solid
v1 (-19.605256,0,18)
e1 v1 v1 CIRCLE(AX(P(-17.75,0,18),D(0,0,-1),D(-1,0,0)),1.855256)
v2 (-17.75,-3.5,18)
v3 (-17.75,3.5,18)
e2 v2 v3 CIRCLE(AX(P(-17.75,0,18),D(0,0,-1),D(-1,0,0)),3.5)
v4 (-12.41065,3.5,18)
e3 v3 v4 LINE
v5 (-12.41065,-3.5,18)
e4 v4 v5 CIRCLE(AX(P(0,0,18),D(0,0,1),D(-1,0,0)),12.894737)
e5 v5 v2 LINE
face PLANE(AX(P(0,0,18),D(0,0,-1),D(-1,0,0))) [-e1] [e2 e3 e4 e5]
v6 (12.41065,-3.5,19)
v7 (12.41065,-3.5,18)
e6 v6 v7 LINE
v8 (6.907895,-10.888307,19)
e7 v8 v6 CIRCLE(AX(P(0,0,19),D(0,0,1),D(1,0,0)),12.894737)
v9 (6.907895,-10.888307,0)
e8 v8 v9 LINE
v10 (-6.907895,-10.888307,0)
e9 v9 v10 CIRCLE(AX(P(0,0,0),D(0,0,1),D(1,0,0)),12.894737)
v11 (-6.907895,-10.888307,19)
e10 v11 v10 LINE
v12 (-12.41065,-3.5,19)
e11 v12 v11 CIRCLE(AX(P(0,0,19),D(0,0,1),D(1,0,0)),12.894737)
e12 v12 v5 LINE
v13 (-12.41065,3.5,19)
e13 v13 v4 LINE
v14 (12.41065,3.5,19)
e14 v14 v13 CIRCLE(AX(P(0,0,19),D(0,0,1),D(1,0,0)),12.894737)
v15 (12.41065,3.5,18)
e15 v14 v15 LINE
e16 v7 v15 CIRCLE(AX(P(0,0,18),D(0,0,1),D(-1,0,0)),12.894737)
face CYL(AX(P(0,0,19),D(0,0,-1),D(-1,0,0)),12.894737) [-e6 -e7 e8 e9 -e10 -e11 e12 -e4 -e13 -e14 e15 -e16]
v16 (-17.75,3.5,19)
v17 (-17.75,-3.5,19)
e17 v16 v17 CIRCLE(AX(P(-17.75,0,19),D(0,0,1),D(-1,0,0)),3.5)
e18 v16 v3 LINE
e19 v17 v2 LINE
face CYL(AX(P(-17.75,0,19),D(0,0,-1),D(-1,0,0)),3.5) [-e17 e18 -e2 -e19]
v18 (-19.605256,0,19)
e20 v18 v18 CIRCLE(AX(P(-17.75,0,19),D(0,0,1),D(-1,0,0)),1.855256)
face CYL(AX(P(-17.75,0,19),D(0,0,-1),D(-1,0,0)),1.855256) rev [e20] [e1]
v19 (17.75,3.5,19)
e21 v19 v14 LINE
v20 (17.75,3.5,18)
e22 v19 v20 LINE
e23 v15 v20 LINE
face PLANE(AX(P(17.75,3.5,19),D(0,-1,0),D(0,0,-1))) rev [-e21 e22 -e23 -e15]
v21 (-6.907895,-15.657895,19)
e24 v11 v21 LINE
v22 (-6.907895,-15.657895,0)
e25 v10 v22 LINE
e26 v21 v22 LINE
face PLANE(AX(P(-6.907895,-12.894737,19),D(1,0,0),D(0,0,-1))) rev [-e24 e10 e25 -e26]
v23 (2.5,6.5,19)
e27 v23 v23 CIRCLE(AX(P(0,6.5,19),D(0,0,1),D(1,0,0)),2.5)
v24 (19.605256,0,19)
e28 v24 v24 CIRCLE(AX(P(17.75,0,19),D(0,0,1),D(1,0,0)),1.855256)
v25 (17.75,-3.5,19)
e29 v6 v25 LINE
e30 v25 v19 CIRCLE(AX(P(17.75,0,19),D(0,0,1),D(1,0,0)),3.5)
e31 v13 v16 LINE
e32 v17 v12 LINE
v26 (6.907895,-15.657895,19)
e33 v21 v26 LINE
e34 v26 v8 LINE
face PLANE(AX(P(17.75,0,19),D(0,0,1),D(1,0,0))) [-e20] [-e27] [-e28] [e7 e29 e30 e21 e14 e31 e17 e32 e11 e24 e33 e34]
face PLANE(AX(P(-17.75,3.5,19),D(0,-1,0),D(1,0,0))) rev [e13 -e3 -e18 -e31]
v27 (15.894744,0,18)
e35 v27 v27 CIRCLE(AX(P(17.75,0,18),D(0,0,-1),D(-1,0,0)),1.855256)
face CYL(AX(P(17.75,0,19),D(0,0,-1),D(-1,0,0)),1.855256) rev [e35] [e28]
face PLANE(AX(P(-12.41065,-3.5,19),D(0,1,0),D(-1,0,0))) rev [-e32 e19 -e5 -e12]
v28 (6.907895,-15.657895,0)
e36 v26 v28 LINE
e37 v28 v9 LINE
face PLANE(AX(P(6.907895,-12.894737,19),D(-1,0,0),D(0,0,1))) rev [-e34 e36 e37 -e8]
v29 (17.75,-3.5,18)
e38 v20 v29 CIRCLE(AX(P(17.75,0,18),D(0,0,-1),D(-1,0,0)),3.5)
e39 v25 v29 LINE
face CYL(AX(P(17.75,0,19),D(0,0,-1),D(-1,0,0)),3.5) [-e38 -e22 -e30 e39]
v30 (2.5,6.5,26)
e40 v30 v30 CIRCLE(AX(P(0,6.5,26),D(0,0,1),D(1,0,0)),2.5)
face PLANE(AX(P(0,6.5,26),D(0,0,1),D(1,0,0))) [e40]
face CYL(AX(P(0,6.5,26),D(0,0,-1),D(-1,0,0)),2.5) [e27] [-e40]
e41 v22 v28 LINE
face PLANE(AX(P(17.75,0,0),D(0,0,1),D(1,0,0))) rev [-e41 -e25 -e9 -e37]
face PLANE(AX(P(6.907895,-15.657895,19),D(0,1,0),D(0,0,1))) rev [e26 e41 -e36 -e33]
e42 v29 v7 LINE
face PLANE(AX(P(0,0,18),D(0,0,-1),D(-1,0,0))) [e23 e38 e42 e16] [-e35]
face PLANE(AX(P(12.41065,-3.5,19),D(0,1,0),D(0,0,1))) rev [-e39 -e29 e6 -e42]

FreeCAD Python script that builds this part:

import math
import FreeCAD as App
import Part
import Sketcher

doc = App.newDocument("Part")
body = doc.addObject("PartDesign::Body", "Body")

# Sketch on XY plane
sketch1 = body.newObject("Sketcher::SketchObject", "Sketch")
sketch1.AttachmentSupport = (doc.getObject("XY_Plane"), [""])
sketch1.MapMode = "FlatFace"
sketch1.addGeometry([
    Part.LineSegment(App.Vector(17.8, 3.5, 0), App.Vector(12.4, 3.5, 0)),  # 0
    Part.ArcOfCircle(Part.Circle(App.Vector(0, 0, 0), App.Vector(0, 0, 1), 12.9), math.radians(16), math.radians(164)),  # 1
    Part.LineSegment(App.Vector(-12.4, 3.5, 0), App.Vector(-17.8, 3.5, 0)),  # 2
    Part.ArcOfCircle(Part.Circle(App.Vector(-17.8, 0, 0), App.Vector(0, 0, 1), 3.5), math.radians(90), math.radians(270)),  # 3
    Part.LineSegment(App.Vector(-17.8, -3.5, 0), App.Vector(-12.4, -3.5, 0)),  # 4
    Part.ArcOfCircle(Part.Circle(App.Vector(0, 0, 0), App.Vector(0, 0, 1), 12.9), math.radians(-164), math.radians(-122)),  # 5
    Part.LineSegment(App.Vector(-6.9, -10.9, 0), App.Vector(-6.9, -15.7, 0)),  # 6
    Part.LineSegment(App.Vector(-6.9, -15.7, 0), App.Vector(6.9, -15.7, 0)),  # 7
    Part.LineSegment(App.Vector(6.9, -15.7, 0), App.Vector(6.9, -10.9, 0)),  # 8
    Part.ArcOfCircle(Part.Circle(App.Vector(0, 0, 0), App.Vector(0, 0, 1), 12.9), math.radians(-58), math.radians(-16)),  # 9
    Part.LineSegment(App.Vector(12.4, -3.5, 0), App.Vector(17.8, -3.5, 0)),  # 10
    Part.ArcOfCircle(Part.Circle(App.Vector(17.8, 0, 0), App.Vector(0, 0, 1), 3.5), math.radians(-90), math.radians(90)),  # 11
    Part.Circle(App.Vector(-17.8, 0, 0), App.Vector(0, 0, 1), 1.9),  # 12
    Part.Circle(App.Vector(17.8, 0, 0), App.Vector(0, 0, 1), 1.9),  # 13
], False)
sketch1.addConstraint([
    Sketcher.Constraint("Coincident", 0, 2, 1, 1),
    Sketcher.Constraint("Coincident", 1, 2, 2, 1),
    Sketcher.Constraint("Tangent", 2, 2, 3, 1),
    Sketcher.Constraint("Tangent", 3, 2, 4, 1),
    Sketcher.Constraint("Coincident", 4, 2, 5, 1),
    Sketcher.Constraint("Coincident", 5, 2, 6, 1),
    Sketcher.Constraint("Coincident", 6, 2, 7, 1),
    Sketcher.Constraint("Coincident", 7, 2, 8, 1),
    Sketcher.Constraint("Coincident", 8, 2, 9, 1),
    Sketcher.Constraint("Coincident", 9, 2, 10, 1),
    Sketcher.Constraint("Tangent", 10, 2, 11, 1),
    Sketcher.Constraint("Tangent", 11, 2, 0, 1),
    Sketcher.Constraint("Horizontal", 0),
    Sketcher.Constraint("Horizontal", 2),
    Sketcher.Constraint("Horizontal", 4),
    Sketcher.Constraint("Vertical", 6),
    Sketcher.Constraint("Horizontal", 7),
    Sketcher.Constraint("Vertical", 8),
    Sketcher.Constraint("Horizontal", 10),
    Sketcher.Constraint("Coincident", 1, 3, -1, 1),
    Sketcher.Constraint("Coincident", 5, 3, -1, 1),
    Sketcher.Constraint("Coincident", 9, 3, -1, 1),
    Sketcher.Constraint("Coincident", 12, 3, 3, 3),
    Sketcher.Constraint("Coincident", 13, 3, 11, 3),
    Sketcher.Constraint("Equal", 1, 5),
    Sketcher.Constraint("Equal", 5, 9),
    Sketcher.Constraint("Equal", 3, 11),
    Sketcher.Constraint("Equal", 12, 13),
    Sketcher.Constraint("Symmetric", 3, 3, 11, 3, -1, 1),
    Sketcher.Constraint("PointOnObject", 3, 3, -1),
    Sketcher.Constraint("Horizontal", 5, 2, 8, 2),
    Sketcher.Constraint("Radius", 3, 3.5),
    Sketcher.Constraint("DistanceX", 3, 3, 11, 3, 35.5),
    Sketcher.Constraint("Diameter", 12, 3.710512),
    Sketcher.Constraint("Radius", 1, 12.894737),
    Sketcher.Constraint("DistanceX", 7, 1, 7, 2, 13.815789),
    Sketcher.Constraint("DistanceY", 6, 2, 6, 1, 4.769588),
])
pad1 = body.newObject("PartDesign::Pad", "Pad")
pad1.Profile = sketch1
pad1.Length = 19

# Sketch on XY plane
sketch2 = body.newObject("Sketcher::SketchObject", "Sketch001")
sketch2.AttachmentSupport = (doc.getObject("XY_Plane"), [""])
sketch2.MapMode = "FlatFace"
sketch2.addGeometry([
    Part.LineSegment(App.Vector(-24, 4, 0), App.Vector(-12, 4, 0)),  # 0
    Part.ArcOfCircle(Part.Circle(App.Vector(0, 0, 0), App.Vector(0, 0, 1), 13), math.radians(164), math.radians(196)),  # 1
    Part.LineSegment(App.Vector(-12, -4, 0), App.Vector(-24, -4, 0)),  # 2
    Part.LineSegment(App.Vector(-24, -4, 0), App.Vector(-24, 4, 0)),  # 3
    Part.LineSegment(App.Vector(12, 4, 0), App.Vector(25, 4, 0)),  # 4
    Part.LineSegment(App.Vector(25, 4, 0), App.Vector(25, -4, 0)),  # 5
    Part.LineSegment(App.Vector(25, -4, 0), App.Vector(12, -4, 0)),  # 6
    Part.ArcOfCircle(Part.Circle(App.Vector(0, 0, 0), App.Vector(0, 0, 1), 13), math.radians(-16), math.radians(16)),  # 7
], False)
sketch2.addConstraint([
    Sketcher.Constraint("Coincident", 0, 2, 1, 1),
    Sketcher.Constraint("Coincident", 1, 2, 2, 1),
    Sketcher.Constraint("Coincident", 2, 2, 3, 1),
    Sketcher.Constraint("Coincident", 3, 2, 0, 1),
    Sketcher.Constraint("Coincident", 4, 2, 5, 1),
    Sketcher.Constraint("Coincident", 5, 2, 6, 1),
    Sketcher.Constraint("Coincident", 6, 2, 7, 1),
    Sketcher.Constraint("Coincident", 7, 2, 4, 1),
    Sketcher.Constraint("Horizontal", 0),
    Sketcher.Constraint("Horizontal", 2),
    Sketcher.Constraint("Vertical", 3),
    Sketcher.Constraint("Horizontal", 4),
    Sketcher.Constraint("Vertical", 5),
    Sketcher.Constraint("Horizontal", 6),
    Sketcher.Constraint("Coincident", 1, 3, -1, 1),
    Sketcher.Constraint("Coincident", 7, 3, -1, 1),
    Sketcher.Constraint("Equal", 1, 7),
    Sketcher.Constraint("Horizontal", 3, 2, 4, 2),
    Sketcher.Constraint("Horizontal", 2, 2, 5, 2),
    Sketcher.Constraint("Vertical", 0, 2, 1, 2),
    Sketcher.Constraint("DistanceY", 3, 1, 3, 2, 7.0),
    Sketcher.Constraint("Radius", 1, 12.894737),
    Sketcher.Constraint("DistanceX", 0, 1, 0, 2, 11.396345),
    Sketcher.Constraint("DistanceX", 4, 1, 4, 2, 12.349896),
])
pocket1 = body.newObject("PartDesign::Pocket", "Pocket")
pocket1.Profile = sketch2
pocket1.Length = 18
pocket1.Reversed = True

# Sketch on XY plane
sketch3 = body.newObject("Sketcher::SketchObject", "Sketch002")
sketch3.AttachmentSupport = (doc.getObject("XY_Plane"), [""])
sketch3.MapMode = "FlatFace"
sketch3.AttachmentOffset = App.Placement(App.Vector(0, 0, 19), App.Rotation())
sketch3.addGeometry(Part.Circle(App.Vector(0, 6.5, 0), App.Vector(0, 0, 1), 2.5), False)
sketch3.addConstraint([
    Sketcher.Constraint("PointOnObject", 0, 3, -2),
    Sketcher.Constraint("Diameter", 0, 5.0),
    Sketcher.Constraint("DistanceY", -1, 1, 0, 3, 6.5),
])
pad2 = body.newObject("PartDesign::Pad", "Pad001")
pad2.Profile = sketch3
pad2.Length = 7

doc.recompute()
